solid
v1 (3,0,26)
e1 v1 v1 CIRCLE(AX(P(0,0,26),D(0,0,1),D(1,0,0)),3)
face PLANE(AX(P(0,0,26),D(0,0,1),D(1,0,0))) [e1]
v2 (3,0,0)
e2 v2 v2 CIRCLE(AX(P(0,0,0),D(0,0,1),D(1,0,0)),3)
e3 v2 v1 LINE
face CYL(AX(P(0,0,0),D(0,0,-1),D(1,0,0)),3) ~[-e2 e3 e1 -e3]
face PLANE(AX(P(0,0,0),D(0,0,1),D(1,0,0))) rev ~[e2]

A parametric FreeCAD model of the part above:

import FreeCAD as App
import Part
import Sketcher
from FreeCAD import Vector

doc = App.newDocument("Part")
body = doc.addObject("PartDesign::Body", "Body")

sketch1 = doc.addObject("Sketcher::SketchObject", "Sketch")
body.addObject(sketch1)
sketch1.AttachmentSupport = (doc.XY_Plane, [""])
sketch1.MapMode = "FlatFace"
sketch1.addGeometry(Part.Circle(Vector(0, 0, 0), Vector(0, 0, 1), 3), False)
sketch1.addConstraint([
    Sketcher.Constraint("Coincident", 0, 3, -1, 1),
    Sketcher.Constraint("Diameter", 0, 6.0),
])
pad1 = doc.addObject("PartDesign::Pad", "Pad")
body.addObject(pad1)
pad1.Profile = sketch1
pad1.Length = 26

doc.recompute()
